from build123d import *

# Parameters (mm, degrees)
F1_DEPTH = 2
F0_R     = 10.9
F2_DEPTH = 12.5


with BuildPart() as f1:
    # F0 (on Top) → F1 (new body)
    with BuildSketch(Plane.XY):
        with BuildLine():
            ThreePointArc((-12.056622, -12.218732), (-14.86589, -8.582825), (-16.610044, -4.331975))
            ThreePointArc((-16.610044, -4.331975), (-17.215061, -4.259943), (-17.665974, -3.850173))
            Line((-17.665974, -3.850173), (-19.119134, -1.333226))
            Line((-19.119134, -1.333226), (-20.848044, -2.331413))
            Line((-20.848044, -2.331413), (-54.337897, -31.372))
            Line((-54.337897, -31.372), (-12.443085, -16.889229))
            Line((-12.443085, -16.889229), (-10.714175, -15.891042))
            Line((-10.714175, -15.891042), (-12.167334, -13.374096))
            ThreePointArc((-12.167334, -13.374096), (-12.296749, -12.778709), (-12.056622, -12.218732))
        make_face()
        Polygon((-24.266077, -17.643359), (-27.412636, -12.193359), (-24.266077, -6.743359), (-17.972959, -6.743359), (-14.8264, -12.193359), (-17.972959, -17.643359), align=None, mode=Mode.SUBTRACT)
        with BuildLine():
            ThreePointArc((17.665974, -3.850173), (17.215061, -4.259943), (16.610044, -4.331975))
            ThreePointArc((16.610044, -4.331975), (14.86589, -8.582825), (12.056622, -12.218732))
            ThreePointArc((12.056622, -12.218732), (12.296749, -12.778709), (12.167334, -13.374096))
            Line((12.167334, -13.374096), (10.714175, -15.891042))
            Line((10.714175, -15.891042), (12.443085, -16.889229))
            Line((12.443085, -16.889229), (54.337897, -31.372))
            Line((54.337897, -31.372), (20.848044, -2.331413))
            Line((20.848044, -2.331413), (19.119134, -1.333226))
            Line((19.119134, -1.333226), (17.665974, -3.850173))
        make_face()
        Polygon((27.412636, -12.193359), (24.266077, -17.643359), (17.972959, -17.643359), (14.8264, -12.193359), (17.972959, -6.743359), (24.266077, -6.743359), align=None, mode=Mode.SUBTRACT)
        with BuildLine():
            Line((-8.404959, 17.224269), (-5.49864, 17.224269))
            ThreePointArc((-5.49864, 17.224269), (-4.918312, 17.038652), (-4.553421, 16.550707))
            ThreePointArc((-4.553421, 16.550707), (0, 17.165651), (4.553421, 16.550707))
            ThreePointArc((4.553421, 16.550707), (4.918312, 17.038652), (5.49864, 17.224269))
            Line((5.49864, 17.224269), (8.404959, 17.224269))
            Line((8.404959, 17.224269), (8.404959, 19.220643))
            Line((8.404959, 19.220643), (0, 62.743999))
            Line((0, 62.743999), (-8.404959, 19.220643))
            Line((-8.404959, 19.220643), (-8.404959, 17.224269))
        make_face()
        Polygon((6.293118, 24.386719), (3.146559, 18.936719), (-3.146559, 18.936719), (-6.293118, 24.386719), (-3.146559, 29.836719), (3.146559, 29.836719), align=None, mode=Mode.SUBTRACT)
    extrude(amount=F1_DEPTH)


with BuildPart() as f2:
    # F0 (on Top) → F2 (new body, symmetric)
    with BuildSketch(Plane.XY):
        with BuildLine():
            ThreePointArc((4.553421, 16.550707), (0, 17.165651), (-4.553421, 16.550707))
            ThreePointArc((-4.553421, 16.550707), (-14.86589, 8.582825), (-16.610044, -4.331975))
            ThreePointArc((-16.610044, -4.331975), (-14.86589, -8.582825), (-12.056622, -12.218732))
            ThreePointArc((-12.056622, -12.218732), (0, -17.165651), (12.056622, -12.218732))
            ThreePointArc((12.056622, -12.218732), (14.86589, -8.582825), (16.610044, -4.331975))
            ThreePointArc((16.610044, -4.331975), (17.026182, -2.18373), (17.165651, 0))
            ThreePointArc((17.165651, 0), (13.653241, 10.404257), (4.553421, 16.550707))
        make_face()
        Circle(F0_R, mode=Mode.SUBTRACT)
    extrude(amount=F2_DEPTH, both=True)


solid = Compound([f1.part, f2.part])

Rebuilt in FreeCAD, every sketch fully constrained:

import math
import FreeCAD as App
import Part
import Sketcher
from FreeCAD import Vector
Q = App.Units.Quantity


def add_polygon(sketch, points):
    """Adds a closed chain of lines whose ends are joined by coincident constraints."""
    first, n = sketch.GeometryCount, len(points)
    for a, b in zip(points, points[1:] + points[:1]):
        sketch.addGeometry(Part.LineSegment(App.Vector(*a, 0), App.Vector(*b, 0)), False)
    for i in range(n):
        sketch.addConstraint(Sketcher.Constraint("Coincident", first + i, 2, first + (i + 1) % n, 1))

doc = App.newDocument("Part")
params = doc.addObject("Spreadsheet::Sheet", "Params")
for row, (alias, value) in enumerate([
    ("sketch1_radius", "0.999999 mm"),
    ("pad1_length", "2 mm"),
    ("sketch2_diameter", "21.8 mm"),
    ("pad2_length", "25 mm"),
], start=1):
    params.set(f"A{row}", alias)
    params.set(f"B{row}", "=" + value)
    params.setAlias(f"B{row}", alias)

body = doc.addObject("PartDesign::Body", "Body")
body.AllowCompound = True

# Sketch on XY plane
sketch1 = body.newObject("Sketcher::SketchObject", "Sketch")
sketch1.AttachmentSupport = (doc.getObject("XY_Plane"), [""])
sketch1.MapMode = "FlatFace"
sketch1.addGeometry(Part.ArcOfCircle(Part.Circle(Vector(-0.00001, -0.000004, 0), Vector(0, 0, 1), 17.16564), math.radians(-165.382619), math.radians(-134.617373)), False)  # 0
sketch1.addGeometry(Part.ArcOfCircle(Part.Circle(Vector(-16.799949, -3.350174, 0), Vector(0, 0, 1), 0.999999), math.radians(-150.000005), math.radians(-79.052729)), False)  # 1
sketch1.addGeometry(Part.LineSegment(Vector(-17.665974, -3.850173, 0), Vector(-19.119134, -1.333226, 0)), False)  # 2
sketch1.addGeometry(Part.LineSegment(Vector(-19.119134, -1.333226, 0), Vector(-20.848044, -2.331413, 0)), False)  # 3
sketch1.addGeometry(Part.LineSegment(Vector(-20.848044, -2.331413, 0), Vector(-54.337897, -31.372, 0)), False)  # 4
sketch1.addGeometry(Part.LineSegment(Vector(-54.337897, -31.372, 0), Vector(-12.443085, -16.889229, 0)), False)  # 5
sketch1.addGeometry(Part.LineSegment(Vector(-12.443085, -16.889229, 0), Vector(-10.714175, -15.891042, 0)), False)  # 6
sketch1.addGeometry(Part.LineSegment(Vector(-10.714175, -15.891042, 0), Vector(-12.167334, -13.374096, 0)), False)  # 7
sketch1.addGeometry(Part.ArcOfCircle(Part.Circle(Vector(-11.301309, -12.874096, 0), Vector(0, 0, 1), 1), math.radians(139.052747), math.radians(210.000017)), False)  # 8
add_polygon(sketch1, [(-17.972959, -17.643359), (-24.266077, -17.643359), (-27.412636, -12.193359), (-24.266077, -6.743359), (-17.972959, -6.743359), (-14.8264, -12.193359)])  # lines 9-14
sketch1.addGeometry(Part.ArcOfCircle(Part.Circle(Vector(16.799949, -3.350174, 0), Vector(0, 0, 1), 0.999999), math.radians(-100.947271), math.radians(-29.999995)), False)  # 15
sketch1.addGeometry(Part.ArcOfCircle(Part.Circle(Vector(0.00001, -0.000004, 0), Vector(0, 0, 1), 17.16564), math.radians(-45.382627), math.radians(-14.617381)), False)  # 16
sketch1.addGeometry(Part.ArcOfCircle(Part.Circle(Vector(11.301309, -12.874096, 0), Vector(0, 0, 1), 1), math.radians(-30.000017), math.radians(40.947253)), False)  # 17
sketch1.addGeometry(Part.LineSegment(Vector(12.167334, -13.374096, 0), Vector(10.714175, -15.891042, 0)), False)  # 18
sketch1.addGeometry(Part.LineSegment(Vector(10.714175, -15.891042, 0), Vector(12.443085, -16.889229, 0)), False)  # 19
sketch1.addGeometry(Part.LineSegment(Vector(12.443085, -16.889229, 0), Vector(54.337897, -31.372, 0)), False)  # 20
sketch1.addGeometry(Part.LineSegment(Vector(54.337897, -31.372, 0), Vector(20.848044, -2.331413, 0)), False)  # 21
sketch1.addGeometry(Part.LineSegment(Vector(20.848044, -2.331413, 0), Vector(19.119134, -1.333226, 0)), False)  # 22
sketch1.addGeometry(Part.LineSegment(Vector(19.119134, -1.333226, 0), Vector(17.665974, -3.850173, 0)), False)  # 23
add_polygon(sketch1, [(24.266077, -6.743359), (27.412636, -12.193359), (24.266077, -17.643359), (17.972959, -17.643359), (14.8264, -12.193359), (17.972959, -6.743359)])  # lines 24-29
sketch1.addGeometry(Part.LineSegment(Vector(-8.404959, 17.224269, 0), Vector(-5.49864, 17.224269, 0)), False)  # 30
sketch1.addGeometry(Part.ArcOfCircle(Part.Circle(Vector(-5.49864, 16.224269, 0), Vector(0, 0, 1), 1), math.radians(19.052735), math.radians(90.000005)), False)  # 31
sketch1.addGeometry(Part.ArcOfCircle(Part.Circle(Vector(0, 0.000024, 0), Vector(0, 0, 1), 17.165627), math.radians(74.617366), math.radians(105.382634)), False)  # 32
sketch1.addGeometry(Part.ArcOfCircle(Part.Circle(Vector(5.49864, 16.224269, 0), Vector(0, 0, 1), 1), math.radians(89.999995), math.radians(160.947265)), False)  # 33
sketch1.addGeometry(Part.LineSegment(Vector(5.49864, 17.224269, 0), Vector(8.404959, 17.224269, 0)), False)  # 34
sketch1.addGeometry(Part.LineSegment(Vector(8.404959, 17.224269, 0), Vector(8.404959, 19.220643, 0)), False)  # 35
sketch1.addGeometry(Part.LineSegment(Vector(8.404959, 19.220643, 0), Vector(0, 62.743999, 0)), False)  # 36
sketch1.addGeometry(Part.LineSegment(Vector(0, 62.743999, 0), Vector(-8.404959, 19.220643, 0)), False)  # 37
sketch1.addGeometry(Part.LineSegment(Vector(-8.404959, 19.220643, 0), Vector(-8.404959, 17.224269, 0)), False)  # 38
add_polygon(sketch1, [(3.146559, 29.836719), (6.293118, 24.386719), (3.146559, 18.936719), (-3.146559, 18.936719), (-6.293118, 24.386719), (-3.146559, 29.836719)])  # lines 39-44
sketch1.addConstraint([
    Sketcher.Constraint("Coincident", 0, 1, 1, 2),
    Sketcher.Constraint("Tangent", 1, 1, 2, 1),
    Sketcher.Constraint("Coincident", 2, 2, 3, 1),
    Sketcher.Constraint("Coincident", 3, 2, 4, 1),
    Sketcher.Constraint("Coincident", 4, 2, 5, 1),
    Sketcher.Constraint("Coincident", 5, 2, 6, 1),
    Sketcher.Constraint("Coincident", 6, 2, 7, 1),
    Sketcher.Constraint("Tangent", 7, 2, 8, 2),
    Sketcher.Constraint("Coincident", 8, 1, 0, 2),
    Sketcher.Constraint("Coincident", 15, 1, 16, 2),
    Sketcher.Constraint("Coincident", 16, 1, 17, 2),
    Sketcher.Constraint("Tangent", 17, 1, 18, 1),
    Sketcher.Constraint("Coincident", 18, 2, 19, 1),
    Sketcher.Constraint("Coincident", 19, 2, 20, 1),
    Sketcher.Constraint("Coincident", 20, 2, 21, 1),
    Sketcher.Constraint("Coincident", 21, 2, 22, 1),
    Sketcher.Constraint("Coincident", 22, 2, 23, 1),
    Sketcher.Constraint("Tangent", 23, 2, 15, 2),
    Sketcher.Constraint("Tangent", 30, 2, 31, 2),
    Sketcher.Constraint("Coincident", 31, 1, 32, 2),
    Sketcher.Constraint("Coincident", 32, 1, 33, 2),
    Sketcher.Constraint("Tangent", 33, 1, 34, 1),
    Sketcher.Constraint("Coincident", 34, 2, 35, 1),
    Sketcher.Constraint("Coincident", 35, 2, 36, 1),
    Sketcher.Constraint("Coincident", 36, 2, 37, 1),
    Sketcher.Constraint("Coincident", 37, 2, 38, 1),
    Sketcher.Constraint("Coincident", 38, 2, 30, 1),
    Sketcher.Constraint("Horizontal", 9),
    Sketcher.Constraint("Horizontal", 12),
    Sketcher.Constraint("Horizontal", 26),
    Sketcher.Constraint("Horizontal", 29),
    Sketcher.Constraint("Horizontal", 30),
    Sketcher.Constraint("Horizontal", 34),
    Sketcher.Constraint("Vertical", 35),
    Sketcher.Constraint("Vertical", 38),
    Sketcher.Constraint("Horizontal", 41),
    Sketcher.Constraint("Horizontal", 44),
    Sketcher.Constraint("Equal", 1, 8),
    Sketcher.Constraint("Equal", 8, 15),
    Sketcher.Constraint("Equal", 0, 16),
    Sketcher.Constraint("Equal", 15, 17),
    Sketcher.Constraint("Equal", 17, 31),
    Sketcher.Constraint("Equal", 31, 33),
    Sketcher.Constraint("Symmetric", 0, 3, 16, 3, -1, 1),
    Sketcher.Constraint("Symmetric", 1, 3, 15, 3, -2),
    Sketcher.Constraint("Symmetric", 8, 3, 17, 3, -2),
    Sketcher.Constraint("Symmetric", 31, 3, 33, 3, -2),
    Sketcher.Constraint("Symmetric", 6, 2, 18, 2, -2),
    Sketcher.Constraint("Symmetric", 5, 2, 19, 2, -2),
    Sketcher.Constraint("Symmetric", 4, 2, 20, 2, -2),
    Sketcher.Constraint("Symmetric", 3, 2, 21, 2, -2),
    Sketcher.Constraint("Symmetric", 2, 2, 22, 2, -2),
    Sketcher.Constraint("Symmetric", 10, 2, 24, 2, -2),
    Sketcher.Constraint("Symmetric", 9, 2, 25, 2, -2),
    Sketcher.Constraint("Symmetric", 13, 2, 27, 2, -2),
    Sketcher.Constraint("Symmetric", 12, 2, 28, 2, -2),
    Sketcher.Constraint("Symmetric", 35, 2, 37, 2, -2),
    Sketcher.Constraint("Symmetric", 39, 2, 42, 2, -2),
    Sketcher.Constraint("PointOnObject", 32, 3, -2),
    Sketcher.Constraint("PointOnObject", 36, 2, -2),
    Sketcher.Constraint("Perpendicular", 2, 3),
    Sketcher.Constraint("Parallel", 3, 6),
    Sketcher.Constraint("Perpendicular", 6, 7),
    Sketcher.Constraint("Parallel", 7, 10),
    Sketcher.Constraint("Parallel", 10, 13),
    Sketcher.Constraint("Parallel", 11, 14),
    Sketcher.Constraint("Parallel", 14, 18),
    Sketcher.Constraint("Parallel", 13, 24),
    Sketcher.Constraint("Parallel", 24, 27),
    Sketcher.Constraint("Parallel", 27, 39),
    Sketcher.Constraint("Parallel", 28, 40),
    Sketcher.Constraint("Parallel", 39, 42),
    Sketcher.Constraint("Parallel", 40, 43),
    Sketcher.Constraint("Horizontal", 0, 3, 16, 3),
    Sketcher.Constraint("Horizontal", 10, 2, 13, 2),
    Sketcher.Constraint("Vertical", 9, 2, 11, 2),
    Sketcher.Constraint("Vertical", 41, 2, 43, 2),
    Sketcher.Constraint("Equal", 29, 41),
    Sketcher.Constraint("Equal", 4, 5),
    Sketcher.Constraint("Equal", 3, 6),
    Sketcher.Constraint("Equal", 2, 7),
    Sketcher.Constraint("Equal", 21, 36),
    Sketcher.Constraint("Equal", 28, 39),
    Sketcher.Constraint("Radius", 1, Q("0.999999 mm")),
    Sketcher.Constraint("Angle", 2, Q("120 deg")),
    Sketcher.Constraint("DistanceY", 41, 2, 43, 2, Q("10.9 mm")),
    Sketcher.Constraint("Radius", 0, Q("17.16564 mm")),
    Sketcher.Constraint("DistanceY", 4, 2, -1, 1, Q("31.372 mm")),
    Sketcher.Constraint("DistanceY", -1, 1, 36, 2, Q("62.743999 mm")),
    Sketcher.Constraint("Radius", 32, Q("17.165627 mm")),
    Sketcher.Constraint("DistanceY", 0, 1, 32, 3, Q("4.331999 mm")),
    Sketcher.Constraint("DistanceX", 3, 2, 0, 1, Q("4.238 mm")),
    Sketcher.Constraint("DistanceX", 30, 1, 30, 2, Q("2.906319 mm")),
    Sketcher.Constraint("DistanceX", 13, 2, -1, 1, Q("14.8264 mm")),
    Sketcher.Constraint("DistanceX", 8, 3, 0, 3, Q("11.301299 mm")),
    Sketcher.Constraint("DistanceX", 1, 3, 15, 3, Q("33.599899 mm")),
    Sketcher.Constraint("DistanceX", 1, 1, 6, 2, Q("6.951799 mm")),
    Sketcher.Constraint("DistanceY", 15, 1, 15, 3, Q("0.981801 mm")),
    Sketcher.Constraint("DistanceX", 30, 2, 34, 2, Q("13.903599 mm")),
    Sketcher.Constraint("DistanceX", 40, 2, 35, 2, Q("5.2584 mm")),
    Sketcher.Constraint("Distance", 2, Q("2.90632 mm")),
    Sketcher.Constraint("DistanceY", 35, 1, 35, 2, Q("1.996374 mm")),
    Sketcher.Constraint("DistanceY", -1, 1, 31, 3, Q("16.224269 mm")),
    Sketcher.Constraint("DistanceY", 9, 2, -1, 1, Q("17.643359 mm")),
    Sketcher.Constraint("DistanceY", -1, 1, 39, 2, Q("24.386719 mm")),
])
sketch1.setExpression("Constraints[101]", "Params.sketch1_radius")
pad1 = body.newObject("PartDesign::Pad", "Pad")
pad1.Profile = sketch1
pad1.setExpression("Length", "Params.pad1_length")
body2 = doc.addObject("PartDesign::Body", "Body001")

# Sketch on XY plane
sketch2 = body2.newObject("Sketcher::SketchObject", "Sketch001")
sketch2.AttachmentSupport = (doc.getObject("XY_Plane001"), [""])
sketch2.MapMode = "FlatFace"
sketch2.addGeometry([
    Part.ArcOfCircle(Part.Circle(Vector(0, 0.000024, 0), Vector(0, 0, 1), 17.165627), math.radians(74.617366), math.radians(105.382634)),  # 0
    Part.ArcOfCircle(Part.Circle(Vector(-0.000001, 0, 0), Vector(0, 0, 1), 17.16565), math.radians(105.382608), math.radians(194.617388)),  # 1
    Part.ArcOfCircle(Part.Circle(Vector(-0.00001, -0.000004, 0), Vector(0, 0, 1), 17.16564), math.radians(-165.382619), math.radians(-134.617373)),  # 2
    Part.ArcOfCircle(Part.Circle(Vector(0, -0.000003, 0), Vector(0, 0, 1), 17.165648), math.radians(-134.617393), math.radians(-45.382607)),  # 3
    Part.ArcOfCircle(Part.Circle(Vector(0.00001, -0.000004, 0), Vector(0, 0, 1), 17.16564), math.radians(-45.382627), math.radians(-14.617381)),  # 4
    Part.ArcOfCircle(Part.Circle(Vector(-0.000076, 0.00001, 0), Vector(0, 0, 1), 17.165727), math.radians(-14.617355), math.radians(-0.000035)),  # 5
    Part.ArcOfCircle(Part.Circle(Vector(0, -0.000001, 0), Vector(0, 0, 1), 17.165651), math.radians(0.000004), math.radians(74.617388)),  # 6
    Part.Circle(Vector(0, 0, 0), Vector(0, 0, 1), 10.9),  # 7
], False)
sketch2.addConstraint([
    Sketcher.Constraint("Coincident", 0, 2, 1, 1),
    Sketcher.Constraint("Coincident", 1, 2, 2, 1),
    Sketcher.Constraint("Coincident", 2, 2, 3, 1),
    Sketcher.Constraint("Coincident", 3, 2, 4, 1),
    Sketcher.Constraint("Coincident", 4, 2, 5, 1),
    Sketcher.Constraint("Coincident", 5, 2, 6, 1),
    Sketcher.Constraint("Coincident", 6, 2, 0, 1),
    Sketcher.Constraint("Coincident", 1, 3, -1, 1),
    Sketcher.Constraint("Coincident", 3, 3, -1, 1),
    Sketcher.Constraint("Coincident", 6, 3, -1, 1),
    Sketcher.Constraint("Coincident", 7, 3, -1, 1),
    Sketcher.Constraint("Coincident", 2, 3, 1, 3),
    Sketcher.Constraint("Coincident", 4, 3, 3, 3),
    Sketcher.Constraint("PointOnObject", 0, 3, -2),
    Sketcher.Constraint("PointOnObject", 5, 2, -1),
    Sketcher.Constraint("Diameter", 7, Q("21.8 mm")),
    Sketcher.Constraint("Radius", 1, Q("17.16565 mm")),
    Sketcher.Constraint("Radius", 0, Q("17.165627 mm")),
    Sketcher.Constraint("Radius", 5, Q("17.165727 mm")),
    Sketcher.Constraint("DistanceX", 0, 2, -1, 1, Q("4.553421 mm")),
    Sketcher.Constraint("DistanceX", 2, 2, -1, 1, Q("12.056622 mm")),
    Sketcher.Constraint("DistanceX", -1, 1, 6, 2, Q("4.553421 mm")),
    Sketcher.Constraint("DistanceY", 1, 2, 2, 3, Q("4.331971 mm")),
    Sketcher.Constraint("DistanceY", 3, 2, 3, 3, Q("12.218729 mm")),
    Sketcher.Constraint("DistanceY", 4, 2, 4, 3, Q("4.331971 mm")),
])
sketch2.setExpression("Constraints[15]", "Params.sketch2_diameter")
pad2 = body2.newObject("PartDesign::Pad", "Pad001")
pad2.Profile = sketch2
pad2.setExpression("Length", "Params.pad2_length")
pad2.Midplane = True

doc.recompute()
